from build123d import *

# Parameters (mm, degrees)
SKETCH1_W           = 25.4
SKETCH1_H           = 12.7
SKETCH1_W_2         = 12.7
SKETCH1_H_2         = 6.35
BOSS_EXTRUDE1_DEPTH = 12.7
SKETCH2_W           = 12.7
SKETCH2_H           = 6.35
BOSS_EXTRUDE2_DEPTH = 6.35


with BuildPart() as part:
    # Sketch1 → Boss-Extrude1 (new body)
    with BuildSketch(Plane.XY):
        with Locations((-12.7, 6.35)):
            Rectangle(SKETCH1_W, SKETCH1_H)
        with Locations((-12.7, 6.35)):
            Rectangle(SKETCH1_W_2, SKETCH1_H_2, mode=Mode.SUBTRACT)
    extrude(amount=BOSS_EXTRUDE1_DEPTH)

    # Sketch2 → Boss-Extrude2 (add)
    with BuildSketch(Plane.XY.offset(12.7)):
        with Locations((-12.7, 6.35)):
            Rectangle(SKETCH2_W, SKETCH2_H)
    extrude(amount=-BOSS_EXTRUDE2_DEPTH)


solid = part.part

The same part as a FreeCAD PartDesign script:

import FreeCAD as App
import Part
import Sketcher
from FreeCAD import Vector
Q = App.Units.Quantity


def add_polygon(sketch, points):
    """Adds a closed chain of lines whose ends are joined by coincident constraints."""
    first, n = sketch.GeometryCount, len(points)
    for a, b in zip(points, points[1:] + points[:1]):
        sketch.addGeometry(Part.LineSegment(App.Vector(*a, 0), App.Vector(*b, 0)), False)
    for i in range(n):
        sketch.addConstraint(Sketcher.Constraint("Coincident", first + i, 2, first + (i + 1) % n, 1))

doc = App.newDocument("Part")
body = doc.addObject("PartDesign::Body", "Body")

sketch1 = body.newObject("Sketcher::SketchObject", "Sketch")
sketch1.AttachmentSupport = (doc.getObject("XY_Plane"), [""])
sketch1.MapMode = "FlatFace"
add_polygon(sketch1, [(-25, 13), (-25, 0), (0, 0), (0, 13)])
add_polygon(sketch1, [(-6, 3), (-19, 3), (-19, 10), (-6, 10)])
sketch1.addConstraint([
    Sketcher.Constraint("Vertical", 0),
    Sketcher.Constraint("Horizontal", 1),
    Sketcher.Constraint("Vertical", 2),
    Sketcher.Constraint("Horizontal", 3),
    Sketcher.Constraint("Horizontal", 4),
    Sketcher.Constraint("Vertical", 5),
    Sketcher.Constraint("Horizontal", 6),
    Sketcher.Constraint("Vertical", 7),
    Sketcher.Constraint("Coincident", 1, 2, -1, 1),
    Sketcher.Constraint("Equal", 6, 0),
    Sketcher.Constraint("DistanceX", 1, 1, 1, 2, Q("1 in")),
    Sketcher.Constraint("DistanceX", 4, 2, 4, 1, Q("0.5 in")),
    Sketcher.Constraint("DistanceY", 5, 1, 5, 2, Q("0.25 in")),
    Sketcher.Constraint("DistanceX", 4, 2, -1, 1, Q("0.75 in")),
    Sketcher.Constraint("DistanceY", -1, 1, 4, 2, Q("0.125 in")),
])
pad1 = body.newObject("PartDesign::Pad", "Pad")
pad1.Profile = sketch1
pad1.Length = Q("0.5 in")

sketch2 = body.newObject("Sketcher::SketchObject", "Sketch001")
sketch2.AttachmentSupport = (doc.getObject("XY_Plane"), [""])
sketch2.MapMode = "FlatFace"
sketch2.AttachmentOffset = App.Placement(Vector(0, 0, 0.5 * 25.4), App.Rotation())
add_polygon(sketch2, [(-19, 10), (-19, 3), (-6, 3), (-6, 10)])
sketch2.addConstraint([
    Sketcher.Constraint("Vertical", 0),
    Sketcher.Constraint("Horizontal", 1),
    Sketcher.Constraint("Vertical", 2),
    Sketcher.Constraint("Horizontal", 3),
    Sketcher.Constraint("DistanceX", 1, 1, 1, 2, Q("0.5 in")),
    Sketcher.Constraint("DistanceY", 0, 2, 0, 1, Q("0.25 in")),
    Sketcher.Constraint("DistanceX", 0, 2, -1, 1, Q("0.75 in")),
    Sketcher.Constraint("DistanceY", -1, 1, 0, 2, Q("0.125 in")),
])
pad2 = body.newObject("PartDesign::Pad", "Pad001")
pad2.Profile = sketch2
pad2.Length = Q("0.25 in")
pad2.Reversed = True

doc.recompute()
